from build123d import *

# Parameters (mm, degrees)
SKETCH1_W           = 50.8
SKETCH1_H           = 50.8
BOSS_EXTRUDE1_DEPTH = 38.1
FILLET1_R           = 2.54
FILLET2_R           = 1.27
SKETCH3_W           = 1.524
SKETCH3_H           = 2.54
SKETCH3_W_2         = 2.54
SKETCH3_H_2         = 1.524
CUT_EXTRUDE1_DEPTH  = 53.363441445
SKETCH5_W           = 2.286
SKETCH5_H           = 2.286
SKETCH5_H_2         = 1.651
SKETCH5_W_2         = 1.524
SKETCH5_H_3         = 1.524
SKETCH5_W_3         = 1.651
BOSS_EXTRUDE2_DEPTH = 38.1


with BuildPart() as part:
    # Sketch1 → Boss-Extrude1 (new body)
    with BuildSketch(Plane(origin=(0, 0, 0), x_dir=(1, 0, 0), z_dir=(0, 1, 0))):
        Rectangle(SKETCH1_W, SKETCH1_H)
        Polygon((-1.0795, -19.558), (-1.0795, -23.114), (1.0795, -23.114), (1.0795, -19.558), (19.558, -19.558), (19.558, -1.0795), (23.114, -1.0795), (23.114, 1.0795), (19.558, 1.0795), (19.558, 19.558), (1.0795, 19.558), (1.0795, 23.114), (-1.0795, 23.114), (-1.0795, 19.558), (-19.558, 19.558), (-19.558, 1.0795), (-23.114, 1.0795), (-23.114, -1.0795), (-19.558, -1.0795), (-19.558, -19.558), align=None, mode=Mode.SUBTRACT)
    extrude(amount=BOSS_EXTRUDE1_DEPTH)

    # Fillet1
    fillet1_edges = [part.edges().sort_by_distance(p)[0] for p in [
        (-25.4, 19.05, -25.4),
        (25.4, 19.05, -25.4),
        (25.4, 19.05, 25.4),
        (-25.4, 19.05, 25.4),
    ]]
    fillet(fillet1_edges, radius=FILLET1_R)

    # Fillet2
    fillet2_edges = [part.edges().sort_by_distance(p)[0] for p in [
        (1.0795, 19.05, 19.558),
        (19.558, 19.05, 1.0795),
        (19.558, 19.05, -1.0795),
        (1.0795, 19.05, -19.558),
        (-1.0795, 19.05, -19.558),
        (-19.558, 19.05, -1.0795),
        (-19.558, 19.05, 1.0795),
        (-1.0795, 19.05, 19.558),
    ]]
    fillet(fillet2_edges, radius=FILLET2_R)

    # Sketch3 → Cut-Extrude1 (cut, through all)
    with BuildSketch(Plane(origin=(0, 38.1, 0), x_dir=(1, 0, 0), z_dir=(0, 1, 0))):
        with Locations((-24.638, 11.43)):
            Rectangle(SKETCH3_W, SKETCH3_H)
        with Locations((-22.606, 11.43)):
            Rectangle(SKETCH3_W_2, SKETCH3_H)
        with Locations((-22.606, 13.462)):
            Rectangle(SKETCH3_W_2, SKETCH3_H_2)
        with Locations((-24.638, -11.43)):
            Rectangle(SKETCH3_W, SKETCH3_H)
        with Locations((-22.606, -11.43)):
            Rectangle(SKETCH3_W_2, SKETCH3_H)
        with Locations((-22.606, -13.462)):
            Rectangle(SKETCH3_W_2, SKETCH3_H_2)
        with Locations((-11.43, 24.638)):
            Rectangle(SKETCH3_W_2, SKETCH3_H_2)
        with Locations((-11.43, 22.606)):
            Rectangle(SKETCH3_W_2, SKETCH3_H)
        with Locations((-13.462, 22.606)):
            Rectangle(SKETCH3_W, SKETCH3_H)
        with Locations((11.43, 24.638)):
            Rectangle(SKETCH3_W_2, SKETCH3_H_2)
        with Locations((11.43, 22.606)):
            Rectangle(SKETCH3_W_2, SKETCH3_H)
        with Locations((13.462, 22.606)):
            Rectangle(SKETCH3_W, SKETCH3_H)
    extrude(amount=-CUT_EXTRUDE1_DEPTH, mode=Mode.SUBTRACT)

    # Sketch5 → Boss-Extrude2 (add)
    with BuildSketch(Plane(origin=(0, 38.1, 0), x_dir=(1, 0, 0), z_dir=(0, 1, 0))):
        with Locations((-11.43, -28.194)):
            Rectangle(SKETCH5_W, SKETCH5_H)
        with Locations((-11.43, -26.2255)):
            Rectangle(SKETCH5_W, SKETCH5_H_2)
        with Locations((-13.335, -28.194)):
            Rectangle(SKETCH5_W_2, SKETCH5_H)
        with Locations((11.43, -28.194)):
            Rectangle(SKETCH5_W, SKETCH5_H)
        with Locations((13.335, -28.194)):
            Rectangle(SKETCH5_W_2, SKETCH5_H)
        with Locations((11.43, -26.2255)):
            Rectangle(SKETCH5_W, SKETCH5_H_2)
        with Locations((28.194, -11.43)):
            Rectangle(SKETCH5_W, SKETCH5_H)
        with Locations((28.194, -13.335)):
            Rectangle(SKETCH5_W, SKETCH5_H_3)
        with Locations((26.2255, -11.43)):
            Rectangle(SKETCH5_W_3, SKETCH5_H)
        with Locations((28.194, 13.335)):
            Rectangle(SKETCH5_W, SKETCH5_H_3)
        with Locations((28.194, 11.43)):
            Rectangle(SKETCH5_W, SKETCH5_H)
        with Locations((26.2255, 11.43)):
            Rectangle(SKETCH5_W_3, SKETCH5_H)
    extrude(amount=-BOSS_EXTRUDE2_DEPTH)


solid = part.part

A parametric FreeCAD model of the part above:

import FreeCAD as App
import Part
import Sketcher
from FreeCAD import Vector
Q = App.Units.Quantity


def edges_at(feature, points):
    """Names of the edges that pass closest to the given points."""
    edges = feature.Shape.Edges
    near = lambda p: min(range(len(edges)), key=lambda i: edges[i].distToShape(Part.Vertex(*p))[0])
    return sorted({f"Edge{near(p) + 1}" for p in points})

doc = App.newDocument("Part")
body = doc.addObject("PartDesign::Body", "Body")

sketch1 = body.newObject("Sketcher::SketchObject", "Sketch")
sketch1.AttachmentSupport = (doc.getObject("XZ_Plane"), [""])
sketch1.MapMode = "FlatFace"
sketch1.addGeometry(Part.LineSegment(Vector(-25.4, -25.4, 0), Vector(-25.4, 25.4, 0)), False)
sketch1.addGeometry(Part.LineSegment(Vector(-25.4, 25.4, 0), Vector(25.4, 25.4, 0)), False)
sketch1.addGeometry(Part.LineSegment(Vector(25.4, 25.4, 0), Vector(25.4, -25.4, 0)), False)
sketch1.addGeometry(Part.LineSegment(Vector(25.4, -25.4, 0), Vector(-25.4, -25.4, 0)), False)
sketch1.addGeometry(Part.LineSegment(Vector(-1.1, 23.1, 0), Vector(-1.1, 19.6, 0)), False)
sketch1.addGeometry(Part.LineSegment(Vector(-1.1, 19.6, 0), Vector(-19.6, 19.6, 0)), False)
sketch1.addGeometry(Part.LineSegment(Vector(-19.6, 19.6, 0), Vector(-19.6, 1.1, 0)), False)
sketch1.addGeometry(Part.LineSegment(Vector(-19.6, 1.1, 0), Vector(-23.1, 1.1, 0)), False)
sketch1.addGeometry(Part.LineSegment(Vector(-23.1, 1.1, 0), Vector(-23.1, -1.1, 0)), False)
sketch1.addGeometry(Part.LineSegment(Vector(-23.1, -1.1, 0), Vector(-19.6, -1.1, 0)), False)
sketch1.addGeometry(Part.LineSegment(Vector(-19.6, -1.1, 0), Vector(-19.6, -19.6, 0)), False)
sketch1.addGeometry(Part.LineSegment(Vector(-19.6, -19.6, 0), Vector(-1.1, -19.6, 0)), False)
sketch1.addGeometry(Part.LineSegment(Vector(-1.1, -19.6, 0), Vector(-1.1, -23.1, 0)), False)
sketch1.addGeometry(Part.LineSegment(Vector(-1.1, -23.1, 0), Vector(1.1, -23.1, 0)), False)
sketch1.addGeometry(Part.LineSegment(Vector(1.1, -23.1, 0), Vector(1.1, -19.6, 0)), False)
sketch1.addGeometry(Part.LineSegment(Vector(1.1, -19.6, 0), Vector(19.6, -19.6, 0)), False)
sketch1.addGeometry(Part.LineSegment(Vector(19.6, -19.6, 0), Vector(19.6, -1.1, 0)), False)
sketch1.addGeometry(Part.LineSegment(Vector(19.6, -1.1, 0), Vector(23.1, -1.1, 0)), False)
sketch1.addGeometry(Part.LineSegment(Vector(23.1, -1.1, 0), Vector(23.1, 1.1, 0)), False)
sketch1.addGeometry(Part.LineSegment(Vector(23.1, 1.1, 0), Vector(19.6, 1.1, 0)), False)
sketch1.addGeometry(Part.LineSegment(Vector(19.6, 1.1, 0), Vector(19.6, 19.6, 0)), False)
sketch1.addGeometry(Part.LineSegment(Vector(19.6, 19.6, 0), Vector(1.1, 19.6, 0)), False)
sketch1.addGeometry(Part.LineSegment(Vector(1.1, 19.6, 0), Vector(1.1, 23.1, 0)), False)
sketch1.addGeometry(Part.LineSegment(Vector(1.1, 23.1, 0), Vector(-1.1, 23.1, 0)), False)
sketch1.addConstraint(Sketcher.Constraint("Coincident", 0, 2, 1, 1))
sketch1.addConstraint(Sketcher.Constraint("Coincident", 1, 2, 2, 1))
sketch1.addConstraint(Sketcher.Constraint("Coincident", 2, 2, 3, 1))
sketch1.addConstraint(Sketcher.Constraint("Coincident", 3, 2, 0, 1))
sketch1.addConstraint(Sketcher.Constraint("Coincident", 4, 2, 5, 1))
sketch1.addConstraint(Sketcher.Constraint("Coincident", 5, 2, 6, 1))
sketch1.addConstraint(Sketcher.Constraint("Coincident", 6, 2, 7, 1))
sketch1.addConstraint(Sketcher.Constraint("Coincident", 7, 2, 8, 1))
sketch1.addConstraint(Sketcher.Constraint("Coincident", 8, 2, 9, 1))
sketch1.addConstraint(Sketcher.Constraint("Coincident", 9, 2, 10, 1))
sketch1.addConstraint(Sketcher.Constraint("Coincident", 10, 2, 11, 1))
sketch1.addConstraint(Sketcher.Constraint("Coincident", 11, 2, 12, 1))
sketch1.addConstraint(Sketcher.Constraint("Coincident", 12, 2, 13, 1))
sketch1.addConstraint(Sketcher.Constraint("Coincident", 13, 2, 14, 1))
sketch1.addConstraint(Sketcher.Constraint("Coincident", 14, 2, 15, 1))
sketch1.addConstraint(Sketcher.Constraint("Coincident", 15, 2, 16, 1))
sketch1.addConstraint(Sketcher.Constraint("Coincident", 16, 2, 17, 1))
sketch1.addConstraint(Sketcher.Constraint("Coincident", 17, 2, 18, 1))
sketch1.addConstraint(Sketcher.Constraint("Coincident", 18, 2, 19, 1))
sketch1.addConstraint(Sketcher.Constraint("Coincident", 19, 2, 20, 1))
sketch1.addConstraint(Sketcher.Constraint("Coincident", 20, 2, 21, 1))
sketch1.addConstraint(Sketcher.Constraint("Coincident", 21, 2, 22, 1))
sketch1.addConstraint(Sketcher.Constraint("Coincident", 22, 2, 23, 1))
sketch1.addConstraint(Sketcher.Constraint("Coincident", 23, 2, 4, 1))
sketch1.addConstraint(Sketcher.Constraint("Vertical", 0))
sketch1.addConstraint(Sketcher.Constraint("Horizontal", 1))
sketch1.addConstraint(Sketcher.Constraint("Vertical", 2))
sketch1.addConstraint(Sketcher.Constraint("Horizontal", 3))
sketch1.addConstraint(Sketcher.Constraint("Vertical", 4))
sketch1.addConstraint(Sketcher.Constraint("Horizontal", 5))
sketch1.addConstraint(Sketcher.Constraint("Vertical", 6))
sketch1.addConstraint(Sketcher.Constraint("Horizontal", 7))
sketch1.addConstraint(Sketcher.Constraint("Vertical", 8))
sketch1.addConstraint(Sketcher.Constraint("Horizontal", 9))
sketch1.addConstraint(Sketcher.Constraint("Vertical", 10))
sketch1.addConstraint(Sketcher.Constraint("Horizontal", 11))
sketch1.addConstraint(Sketcher.Constraint("Vertical", 12))
sketch1.addConstraint(Sketcher.Constraint("Horizontal", 13))
sketch1.addConstraint(Sketcher.Constraint("Vertical", 14))
sketch1.addConstraint(Sketcher.Constraint("Horizontal", 15))
sketch1.addConstraint(Sketcher.Constraint("Vertical", 16))
sketch1.addConstraint(Sketcher.Constraint("Horizontal", 17))
sketch1.addConstraint(Sketcher.Constraint("Vertical", 18))
sketch1.addConstraint(Sketcher.Constraint("Horizontal", 19))
sketch1.addConstraint(Sketcher.Constraint("Vertical", 20))
sketch1.addConstraint(Sketcher.Constraint("Horizontal", 21))
sketch1.addConstraint(Sketcher.Constraint("Vertical", 22))
sketch1.addConstraint(Sketcher.Constraint("Horizontal", 23))
sketch1.addConstraint(Sketcher.Constraint("Symmetric", 0, 2, 2, 2, -1, 1))
sketch1.addConstraint(Sketcher.Constraint("Symmetric", 4, 2, 14, 2, -1, 1))
sketch1.addConstraint(Sketcher.Constraint("Symmetric", 6, 2, 16, 2, -1, 1))
sketch1.addConstraint(Sketcher.Constraint("Symmetric", 8, 2, 18, 2, -1, 1))
sketch1.addConstraint(Sketcher.Constraint("Symmetric", 10, 2, 20, 2, -1, 1))
sketch1.addConstraint(Sketcher.Constraint("Symmetric", 12, 2, 22, 2, -1, 1))
sketch1.addConstraint(Sketcher.Constraint("Symmetric", 11, 2, 14, 2, -2))
sketch1.addConstraint(Sketcher.Constraint("Symmetric", 9, 2, 16, 2, -2))
sketch1.addConstraint(Sketcher.Constraint("Equal", 3, 0))
sketch1.addConstraint(Sketcher.Constraint("Equal", 19, 4))
sketch1.addConstraint(Sketcher.Constraint("Equal", 21, 6))
sketch1.addConstraint(Sketcher.Constraint("Equal", 23, 8))
sketch1.addConstraint(Sketcher.Constraint("DistanceX", 1, 1, 1, 2, Q("2 in")))
sketch1.addConstraint(Sketcher.Constraint("DistanceX", 7, 2, 7, 1, Q("0.14 in")))
sketch1.addConstraint(Sketcher.Constraint("DistanceX", 13, 1, 13, 2, Q("0.085 in")))
sketch1.addConstraint(Sketcher.Constraint("DistanceY", -1, 1, 4, 2, Q("0.77 in")))
pad1 = body.newObject("PartDesign::Pad", "Pad")
pad1.Profile = sketch1
pad1.Length = Q("1.5 in")
pad1.Reversed = True
doc.recompute()

fillet = body.newObject("PartDesign::Fillet", "Fillet")
fillet.Base = (pad1, edges_at(pad1, [
    (-25.4, 19.05, -25.4),
    (25.4, 19.05, -25.4),
    (25.4, 19.05, 25.4),
    (-25.4, 19.05, 25.4),
]))
fillet.Radius = Q("0.1 in")
doc.recompute()

fillet2 = body.newObject("PartDesign::Fillet", "Fillet001")
fillet2.Base = (fillet, edges_at(fillet, [
    (1.079, 19.05, 19.558),
    (19.558, 19.05, 1.079),
    (19.558, 19.05, -1.079),
    (1.079, 19.05, -19.558),
    (-1.079, 19.05, -19.558),
    (-19.558, 19.05, -1.079),
    (-19.558, 19.05, 1.079),
    (-1.079, 19.05, 19.558),
]))
fillet2.Radius = Q("0.05 in")

sketch2 = body.newObject("Sketcher::SketchObject", "Sketch001")
sketch2.AttachmentSupport = (doc.getObject("XZ_Plane"), [""])
sketch2.MapMode = "FlatFace"
sketch2.AttachmentOffset = App.Placement(Vector(0, 0, -1.5 * 25.4), App.Rotation())
sketch2.addGeometry(Part.LineSegment(Vector(-25.4, -12.7, 0), Vector(-25.4, -10.2, 0)), False)
sketch2.addGeometry(Part.LineSegment(Vector(-25.4, -10.2, 0), Vector(-21.3, -10.2, 0)), False)
sketch2.addGeometry(Part.LineSegment(Vector(-21.3, -10.2, 0), Vector(-21.3, -14.2, 0)), False)
sketch2.addGeometry(Part.LineSegment(Vector(-21.3, -14.2, 0), Vector(-23.9, -14.2, 0)), False)
sketch2.addGeometry(Part.LineSegment(Vector(-23.9, -14.2, 0), Vector(-23.9, -12.7, 0)), False)
sketch2.addGeometry(Part.LineSegment(Vector(-23.9, -12.7, 0), Vector(-25.4, -12.7, 0)), False)
sketch2.addGeometry(Part.LineSegment(Vector(-25.4, 10.2, 0), Vector(-25.4, 12.7, 0)), False)
sketch2.addGeometry(Part.LineSegment(Vector(-25.4, 12.7, 0), Vector(-23.9, 12.7, 0)), False)
sketch2.addGeometry(Part.LineSegment(Vector(-23.9, 12.7, 0), Vector(-23.9, 14.2, 0)), False)
sketch2.addGeometry(Part.LineSegment(Vector(-23.9, 14.2, 0), Vector(-21.3, 14.2, 0)), False)
sketch2.addGeometry(Part.LineSegment(Vector(-21.3, 14.2, 0), Vector(-21.3, 10.2, 0)), False)
sketch2.addGeometry(Part.LineSegment(Vector(-21.3, 10.2, 0), Vector(-25.4, 10.2, 0)), False)
sketch2.addGeometry(Part.LineSegment(Vector(-12.7, -25.4, 0), Vector(-12.7, -23.9, 0)), False)
sketch2.addGeometry(Part.LineSegment(Vector(-12.7, -23.9, 0), Vector(-14.2, -23.9, 0)), False)
sketch2.addGeometry(Part.LineSegment(Vector(-14.2, -23.9, 0), Vector(-14.2, -21.3, 0)), False)
sketch2.addGeometry(Part.LineSegment(Vector(-14.2, -21.3, 0), Vector(-10.2, -21.3, 0)), False)
sketch2.addGeometry(Part.LineSegment(Vector(-10.2, -21.3, 0), Vector(-10.2, -25.4, 0)), False)
sketch2.addGeometry(Part.LineSegment(Vector(-10.2, -25.4, 0), Vector(-12.7, -25.4, 0)), False)
sketch2.addGeometry(Part.LineSegment(Vector(10.2, -25.4, 0), Vector(10.2, -21.3, 0)), False)
sketch2.addGeometry(Part.LineSegment(Vector(10.2, -21.3, 0), Vector(14.2, -21.3, 0)), False)
sketch2.addGeometry(Part.LineSegment(Vector(14.2, -21.3, 0), Vector(14.2, -23.9, 0)), False)
sketch2.addGeometry(Part.LineSegment(Vector(14.2, -23.9, 0), Vector(12.7, -23.9, 0)), False)
sketch2.addGeometry(Part.LineSegment(Vector(12.7, -23.9, 0), Vector(12.7, -25.4, 0)), False)
sketch2.addGeometry(Part.LineSegment(Vector(12.7, -25.4, 0), Vector(10.2, -25.4, 0)), False)
sketch2.addConstraint(Sketcher.Constraint("Coincident", 0, 2, 1, 1))
sketch2.addConstraint(Sketcher.Constraint("Coincident", 1, 2, 2, 1))
sketch2.addConstraint(Sketcher.Constraint("Coincident", 2, 2, 3, 1))
sketch2.addConstraint(Sketcher.Constraint("Coincident", 3, 2, 4, 1))
sketch2.addConstraint(Sketcher.Constraint("Coincident", 4, 2, 5, 1))
sketch2.addConstraint(Sketcher.Constraint("Coincident", 5, 2, 0, 1))
sketch2.addConstraint(Sketcher.Constraint("Coincident", 6, 2, 7, 1))
sketch2.addConstraint(Sketcher.Constraint("Coincident", 7, 2, 8, 1))
sketch2.addConstraint(Sketcher.Constraint("Coincident", 8, 2, 9, 1))
sketch2.addConstraint(Sketcher.Constraint("Coincident", 9, 2, 10, 1))
sketch2.addConstraint(Sketcher.Constraint("Coincident", 10, 2, 11, 1))
sketch2.addConstraint(Sketcher.Constraint("Coincident", 11, 2, 6, 1))
sketch2.addConstraint(Sketcher.Constraint("Coincident", 12, 2, 13, 1))
sketch2.addConstraint(Sketcher.Constraint("Coincident", 13, 2, 14, 1))
sketch2.addConstraint(Sketcher.Constraint("Coincident", 14, 2, 15, 1))
sketch2.addConstraint(Sketcher.Constraint("Coincident", 15, 2, 16, 1))
sketch2.addConstraint(Sketcher.Constraint("Coincident", 16, 2, 17, 1))
sketch2.addConstraint(Sketcher.Constraint("Coincident", 17, 2, 12, 1))
sketch2.addConstraint(Sketcher.Constraint("Coincident", 18, 2, 19, 1))
sketch2.addConstraint(Sketcher.Constraint("Coincident", 19, 2, 20, 1))
sketch2.addConstraint(Sketcher.Constraint("Coincident", 20, 2, 21, 1))
sketch2.addConstraint(Sketcher.Constraint("Coincident", 21, 2, 22, 1))
sketch2.addConstraint(Sketcher.Constraint("Coincident", 22, 2, 23, 1))
sketch2.addConstraint(Sketcher.Constraint("Coincident", 23, 2, 18, 1))
sketch2.addConstraint(Sketcher.Constraint("Vertical", 0))
sketch2.addConstraint(Sketcher.Constraint("Horizontal", 1))
sketch2.addConstraint(Sketcher.Constraint("Vertical", 2))
sketch2.addConstraint(Sketcher.Constraint("Horizontal", 3))
sketch2.addConstraint(Sketcher.Constraint("Vertical", 4))
sketch2.addConstraint(Sketcher.Constraint("Horizontal", 5))
sketch2.addConstraint(Sketcher.Constraint("Vertical", 6))
sketch2.addConstraint(Sketcher.Constraint("Horizontal", 7))
sketch2.addConstraint(Sketcher.Constraint("Vertical", 8))
sketch2.addConstraint(Sketcher.Constraint("Horizontal", 9))
sketch2.addConstraint(Sketcher.Constraint("Vertical", 10))
sketch2.addConstraint(Sketcher.Constraint("Horizontal", 11))
sketch2.addConstraint(Sketcher.Constraint("Vertical", 12))
sketch2.addConstraint(Sketcher.Constraint("Horizontal", 13))
sketch2.addConstraint(Sketcher.Constraint("Vertical", 14))
sketch2.addConstraint(Sketcher.Constraint("Horizontal", 15))
sketch2.addConstraint(Sketcher.Constraint("Vertical", 16))
sketch2.addConstraint(Sketcher.Constraint("Horizontal", 17))
sketch2.addConstraint(Sketcher.Constraint("Vertical", 18))
sketch2.addConstraint(Sketcher.Constraint("Horizontal", 19))
sketch2.addConstraint(Sketcher.Constraint("Vertical", 20))
sketch2.addConstraint(Sketcher.Constraint("Horizontal", 21))
sketch2.addConstraint(Sketcher.Constraint("Vertical", 22))
sketch2.addConstraint(Sketcher.Constraint("Horizontal", 23))
sketch2.addConstraint(Sketcher.Constraint("Symmetric", 15, 2, 18, 2, -2))
sketch2.addConstraint(Sketcher.Constraint("Symmetric", 13, 2, 20, 2, -2))
sketch2.addConstraint(Sketcher.Constraint("Symmetric", 17, 2, 22, 2, -2))
sketch2.addConstraint(Sketcher.Constraint("Symmetric", 5, 2, 6, 2, -1))
sketch2.addConstraint(Sketcher.Constraint("Symmetric", 3, 2, 8, 2, -1))
sketch2.addConstraint(Sketcher.Constraint("Symmetric", 1, 2, 10, 2, -1))
sketch2.addConstraint(Sketcher.Constraint("Equal", 7, 13))
sketch2.addConstraint(Sketcher.Constraint("Equal", 11, 15))
sketch2.addConstraint(Sketcher.Constraint("Equal", 23, 0))
sketch2.addConstraint(Sketcher.Constraint("Equal", 19, 2))
sketch2.addConstraint(Sketcher.Constraint("Equal", 8, 12))
sketch2.addConstraint(Sketcher.Constraint("Equal", 6, 14))
sketch2.addConstraint(Sketcher.Constraint("DistanceX", 3, 2, 3, 1, Q("0.1 in")))
sketch2.addConstraint(Sketcher.Constraint("DistanceX", 0, 2, -1, 1, Q("1 in")))
sketch2.addConstraint(Sketcher.Constraint("DistanceY", 16, 2, -1, 1, Q("1 in")))
sketch2.addConstraint(Sketcher.Constraint("DistanceY", 5, 2, 6, 2, Q("1 in")))
sketch2.addConstraint(Sketcher.Constraint("DistanceX", 1, 1, 1, 2, Q("0.16 in")))
sketch2.addConstraint(Sketcher.Constraint("DistanceX", 12, 2, -1, 1, Q("0.5 in")))
pocket1 = body.newObject("PartDesign::Pocket", "Pocket")
pocket1.Profile = sketch2
pocket1.Type = "ThroughAll"
pocket1.Reversed = True

sketch3 = body.newObject("Sketcher::SketchObject", "Sketch002")
sketch3.AttachmentSupport = (doc.getObject("XZ_Plane"), [""])
sketch3.MapMode = "FlatFace"
sketch3.AttachmentOffset = App.Placement(Vector(0, 0, -1.5 * 25.4), App.Rotation())
sketch3.addGeometry(Part.LineSegment(Vector(-10.3, 29.3, 0), Vector(-10.3, 25.4, 0)), False)
sketch3.addGeometry(Part.LineSegment(Vector(-10.3, 25.4, 0), Vector(-12.6, 25.4, 0)), False)
sketch3.addGeometry(Part.LineSegment(Vector(-12.6, 25.4, 0), Vector(-12.6, 27.1, 0)), False)
sketch3.addGeometry(Part.LineSegment(Vector(-12.6, 27.1, 0), Vector(-14.1, 27.1, 0)), False)
sketch3.addGeometry(Part.LineSegment(Vector(-14.1, 27.1, 0), Vector(-14.1, 29.3, 0)), False)
sketch3.addGeometry(Part.LineSegment(Vector(-14.1, 29.3, 0), Vector(-10.3, 29.3, 0)), False)
sketch3.addGeometry(Part.LineSegment(Vector(10.3, 29.3, 0), Vector(14.1, 29.3, 0)), False)
sketch3.addGeometry(Part.LineSegment(Vector(14.1, 29.3, 0), Vector(14.1, 27.1, 0)), False)
sketch3.addGeometry(Part.LineSegment(Vector(14.1, 27.1, 0), Vector(12.6, 27.1, 0)), False)
sketch3.addGeometry(Part.LineSegment(Vector(12.6, 27.1, 0), Vector(12.6, 25.4, 0)), False)
sketch3.addGeometry(Part.LineSegment(Vector(12.6, 25.4, 0), Vector(10.3, 25.4, 0)), False)
sketch3.addGeometry(Part.LineSegment(Vector(10.3, 25.4, 0), Vector(10.3, 29.3, 0)), False)
sketch3.addGeometry(Part.LineSegment(Vector(27.1, 12.6, 0), Vector(27.1, 14.1, 0)), False)
sketch3.addGeometry(Part.LineSegment(Vector(27.1, 14.1, 0), Vector(29.3, 14.1, 0)), False)
sketch3.addGeometry(Part.LineSegment(Vector(29.3, 14.1, 0), Vector(29.3, 10.3, 0)), False)
sketch3.addGeometry(Part.LineSegment(Vector(29.3, 10.3, 0), Vector(25.4, 10.3, 0)), False)
sketch3.addGeometry(Part.LineSegment(Vector(25.4, 10.3, 0), Vector(25.4, 12.6, 0)), False)
sketch3.addGeometry(Part.LineSegment(Vector(25.4, 12.6, 0), Vector(27.1, 12.6, 0)), False)
sketch3.addGeometry(Part.LineSegment(Vector(27.1, -14.1, 0), Vector(27.1, -12.6, 0)), False)
sketch3.addGeometry(Part.LineSegment(Vector(27.1, -12.6, 0), Vector(25.4, -12.6, 0)), False)
sketch3.addGeometry(Part.LineSegment(Vector(25.4, -12.6, 0), Vector(25.4, -10.3, 0)), False)
sketch3.addGeometry(Part.LineSegment(Vector(25.4, -10.3, 0), Vector(29.3, -10.3, 0)), False)
sketch3.addGeometry(Part.LineSegment(Vector(29.3, -10.3, 0), Vector(29.3, -14.1, 0)), False)
sketch3.addGeometry(Part.LineSegment(Vector(29.3, -14.1, 0), Vector(27.1, -14.1, 0)), False)
sketch3.addConstraint(Sketcher.Constraint("Coincident", 0, 2, 1, 1))
sketch3.addConstraint(Sketcher.Constraint("Coincident", 1, 2, 2, 1))
sketch3.addConstraint(Sketcher.Constraint("Coincident", 2, 2, 3, 1))
sketch3.addConstraint(Sketcher.Constraint("Coincident", 3, 2, 4, 1))
sketch3.addConstraint(Sketcher.Constraint("Coincident", 4, 2, 5, 1))
sketch3.addConstraint(Sketcher.Constraint("Coincident", 5, 2, 0, 1))
sketch3.addConstraint(Sketcher.Constraint("Coincident", 6, 2, 7, 1))
sketch3.addConstraint(Sketcher.Constraint("Coincident", 7, 2, 8, 1))
sketch3.addConstraint(Sketcher.Constraint("Coincident", 8, 2, 9, 1))
sketch3.addConstraint(Sketcher.Constraint("Coincident", 9, 2, 10, 1))
sketch3.addConstraint(Sketcher.Constraint("Coincident", 10, 2, 11, 1))
sketch3.addConstraint(Sketcher.Constraint("Coincident", 11, 2, 6, 1))
sketch3.addConstraint(Sketcher.Constraint("Coincident", 12, 2, 13, 1))
sketch3.addConstraint(Sketcher.Constraint("Coincident", 13, 2, 14, 1))
sketch3.addConstraint(Sketcher.Constraint("Coincident", 14, 2, 15, 1))
sketch3.addConstraint(Sketcher.Constraint("Coincident", 15, 2, 16, 1))
sketch3.addConstraint(Sketcher.Constraint("Coincident", 16, 2, 17, 1))
sketch3.addConstraint(Sketcher.Constraint("Coincident", 17, 2, 12, 1))
sketch3.addConstraint(Sketcher.Constraint("Coincident", 18, 2, 19, 1))
sketch3.addConstraint(Sketcher.Constraint("Coincident", 19, 2, 20, 1))
sketch3.addConstraint(Sketcher.Constraint("Coincident", 20, 2, 21, 1))
sketch3.addConstraint(Sketcher.Constraint("Coincident", 21, 2, 22, 1))
sketch3.addConstraint(Sketcher.Constraint("Coincident", 22, 2, 23, 1))
sketch3.addConstraint(Sketcher.Constraint("Coincident", 23, 2, 18, 1))
sketch3.addConstraint(Sketcher.Constraint("Vertical", 0))
sketch3.addConstraint(Sketcher.Constraint("Horizontal", 1))
sketch3.addConstraint(Sketcher.Constraint("Vertical", 2))
sketch3.addConstraint(Sketcher.Constraint("Horizontal", 3))
sketch3.addConstraint(Sketcher.Constraint("Vertical", 4))
sketch3.addConstraint(Sketcher.Constraint("Horizontal", 5))
sketch3.addConstraint(Sketcher.Constraint("Horizontal", 6))
sketch3.addConstraint(Sketcher.Constraint("Vertical", 7))
sketch3.addConstraint(Sketcher.Constraint("Horizontal", 8))
sketch3.addConstraint(Sketcher.Constraint("Vertical", 9))
sketch3.addConstraint(Sketcher.Constraint("Horizontal", 10))
sketch3.addConstraint(Sketcher.Constraint("Vertical", 11))
sketch3.addConstraint(Sketcher.Constraint("Vertical", 12))
sketch3.addConstraint(Sketcher.Constraint("Horizontal", 13))
sketch3.addConstraint(Sketcher.Constraint("Vertical", 14))
sketch3.addConstraint(Sketcher.Constraint("Horizontal", 15))
sketch3.addConstraint(Sketcher.Constraint("Vertical", 16))
sketch3.addConstraint(Sketcher.Constraint("Horizontal", 17))
sketch3.addConstraint(Sketcher.Constraint("Vertical", 18))
sketch3.addConstraint(Sketcher.Constraint("Horizontal", 19))
sketch3.addConstraint(Sketcher.Constraint("Vertical", 20))
sketch3.addConstraint(Sketcher.Constraint("Horizontal", 21))
sketch3.addConstraint(Sketcher.Constraint("Vertical", 22))
sketch3.addConstraint(Sketcher.Constraint("Horizontal", 23))
sketch3.addConstraint(Sketcher.Constraint("Symmetric", 4, 2, 6, 2, -2))
sketch3.addConstraint(Sketcher.Constraint("Symmetric", 2, 2, 8, 2, -2))
sketch3.addConstraint(Sketcher.Constraint("Symmetric", 0, 2, 10, 2, -2))
sketch3.addConstraint(Sketcher.Constraint("Symmetric", 17, 2, 18, 2, -1))
sketch3.addConstraint(Sketcher.Constraint("Symmetric", 15, 2, 20, 2, -1))
sketch3.addConstraint(Sketcher.Constraint("Symmetric", 13, 2, 22, 2, -1))
sketch3.addConstraint(Sketcher.Constraint("Equal", 10, 13))
sketch3.addConstraint(Sketcher.Constraint("Equal", 21, 0))
sketch3.addConstraint(Sketcher.Constraint("Equal", 19, 2))
sketch3.addConstraint(Sketcher.Constraint("Equal", 8, 12))
sketch3.addConstraint(Sketcher.Constraint("Equal", 6, 14))
sketch3.addConstraint(Sketcher.Constraint("DistanceY", -1, 1, 0, 2, Q("1 in")))
sketch3.addConstraint(Sketcher.Constraint("DistanceX", -1, 1, 15, 2, Q("1 in")))
sketch3.addConstraint(Sketcher.Constraint("DistanceX", 1, 2, 1, 1, Q("0.09 in")))
sketch3.addConstraint(Sketcher.Constraint("DistanceX", 3, 2, 3, 1, Q("0.06 in")))
sketch3.addConstraint(Sketcher.Constraint("DistanceX", 0, 2, 8, 2, Q("0.9 in")))
sketch3.addConstraint(Sketcher.Constraint("DistanceY", 12, 2, 6, 2, Q("0.6 in")))
sketch3.addConstraint(Sketcher.Constraint("DistanceX", 7, 2, 13, 2, Q("0.6 in")))
pad2 = body.newObject("PartDesign::Pad", "Pad001")
pad2.Profile = sketch3
pad2.Length = Q("1.5 in")

doc.recompute()
